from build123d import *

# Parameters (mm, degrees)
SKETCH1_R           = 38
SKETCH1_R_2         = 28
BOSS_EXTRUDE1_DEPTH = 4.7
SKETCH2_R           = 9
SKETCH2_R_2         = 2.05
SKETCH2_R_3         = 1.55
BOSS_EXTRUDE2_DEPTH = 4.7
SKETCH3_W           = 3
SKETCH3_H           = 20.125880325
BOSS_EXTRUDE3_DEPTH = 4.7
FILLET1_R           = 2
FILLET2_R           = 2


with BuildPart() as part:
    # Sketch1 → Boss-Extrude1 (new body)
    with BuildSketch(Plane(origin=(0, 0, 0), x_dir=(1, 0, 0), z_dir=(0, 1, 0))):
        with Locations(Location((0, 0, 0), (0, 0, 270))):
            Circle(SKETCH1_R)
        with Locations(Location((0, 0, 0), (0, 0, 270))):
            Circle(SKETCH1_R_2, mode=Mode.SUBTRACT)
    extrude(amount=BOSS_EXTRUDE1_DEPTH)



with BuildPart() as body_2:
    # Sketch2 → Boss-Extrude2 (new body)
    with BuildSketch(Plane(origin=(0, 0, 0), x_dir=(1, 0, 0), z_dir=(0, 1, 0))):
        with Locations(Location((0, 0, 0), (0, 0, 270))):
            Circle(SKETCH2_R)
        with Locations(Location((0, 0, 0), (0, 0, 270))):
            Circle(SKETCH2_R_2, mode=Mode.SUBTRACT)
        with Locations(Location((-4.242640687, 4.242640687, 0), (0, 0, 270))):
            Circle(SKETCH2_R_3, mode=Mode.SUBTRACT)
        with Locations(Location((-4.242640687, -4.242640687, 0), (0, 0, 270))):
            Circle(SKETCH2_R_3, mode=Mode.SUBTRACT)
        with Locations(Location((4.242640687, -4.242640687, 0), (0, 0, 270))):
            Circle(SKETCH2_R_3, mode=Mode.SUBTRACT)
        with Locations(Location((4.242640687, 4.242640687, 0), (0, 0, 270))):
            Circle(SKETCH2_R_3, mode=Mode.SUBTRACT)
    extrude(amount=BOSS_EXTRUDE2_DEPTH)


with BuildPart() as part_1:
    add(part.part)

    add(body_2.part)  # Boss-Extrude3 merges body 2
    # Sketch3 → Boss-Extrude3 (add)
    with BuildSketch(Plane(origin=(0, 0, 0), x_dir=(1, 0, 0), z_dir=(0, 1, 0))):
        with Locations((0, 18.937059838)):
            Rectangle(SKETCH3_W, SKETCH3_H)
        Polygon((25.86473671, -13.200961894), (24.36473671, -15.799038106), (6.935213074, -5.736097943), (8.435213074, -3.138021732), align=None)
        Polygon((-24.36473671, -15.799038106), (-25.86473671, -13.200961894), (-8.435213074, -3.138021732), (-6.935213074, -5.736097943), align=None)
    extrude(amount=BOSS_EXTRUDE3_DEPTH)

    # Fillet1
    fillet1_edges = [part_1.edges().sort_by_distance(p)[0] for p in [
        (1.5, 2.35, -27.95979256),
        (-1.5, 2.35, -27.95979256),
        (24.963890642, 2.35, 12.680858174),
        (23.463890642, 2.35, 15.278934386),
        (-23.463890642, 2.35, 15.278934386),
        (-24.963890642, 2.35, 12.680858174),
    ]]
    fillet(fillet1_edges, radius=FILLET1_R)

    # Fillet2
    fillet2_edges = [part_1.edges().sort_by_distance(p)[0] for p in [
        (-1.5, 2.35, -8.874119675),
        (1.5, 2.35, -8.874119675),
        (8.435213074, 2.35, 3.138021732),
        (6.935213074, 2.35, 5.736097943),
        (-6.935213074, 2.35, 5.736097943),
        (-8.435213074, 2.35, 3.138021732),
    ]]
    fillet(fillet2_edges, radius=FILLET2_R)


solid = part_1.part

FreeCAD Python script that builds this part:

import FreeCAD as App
import Part
import Sketcher
Q = App.Units.Quantity


def edges_at(feature, points):
    """Names of the edges that pass closest to the given points."""
    edges = feature.Shape.Edges
    near = lambda p: min(range(len(edges)), key=lambda i: edges[i].distToShape(Part.Vertex(*p))[0])
    return sorted({f"Edge{near(p) + 1}" for p in points})


def add_polygon(sketch, points):
    """Adds a closed chain of lines whose ends are joined by coincident constraints."""
    first, n = sketch.GeometryCount, len(points)
    for a, b in zip(points, points[1:] + points[:1]):
        sketch.addGeometry(Part.LineSegment(App.Vector(*a, 0), App.Vector(*b, 0)), False)
    for i in range(n):
        sketch.addConstraint(Sketcher.Constraint("Coincident", first + i, 2, first + (i + 1) % n, 1))

doc = App.newDocument("Part")
body = doc.addObject("PartDesign::Body", "Body")

# Sketch on XZ plane
sketch1 = body.newObject("Sketcher::SketchObject", "Sketch")
sketch1.AttachmentSupport = (doc.getObject("XZ_Plane"), [""])
sketch1.MapMode = "FlatFace"
sketch1.addGeometry([
    Part.Circle(App.Vector(0, 0, 0), App.Vector(0, 0, 1), 38),
    Part.Circle(App.Vector(0, 0, 0), App.Vector(0, 0, 1), 28),
], False)
sketch1.addConstraint([
    Sketcher.Constraint("Coincident", 0, 3, -1, 1),
    Sketcher.Constraint("Coincident", 1, 3, -1, 1),
    Sketcher.Constraint("Diameter", 0, 76.0),
    Sketcher.Constraint("Diameter", 1, 56.0),
])
pad1 = body.newObject("PartDesign::Pad", "Pad")
pad1.Profile = sketch1
pad1.Length = 4.7
pad1.Reversed = True
body2 = doc.addObject("PartDesign::Body", "Body001")

# Sketch on XZ plane
sketch2 = body2.newObject("Sketcher::SketchObject", "Sketch001")
sketch2.AttachmentSupport = (doc.getObject("XZ_Plane001"), [""])
sketch2.MapMode = "FlatFace"
sketch2.addGeometry([
    Part.Circle(App.Vector(0, 0, 0), App.Vector(0, 0, 1), 9),  # 0
    Part.Circle(App.Vector(-4.2, -4.2, 0), App.Vector(0, 0, 1), 1.6),  # 1
    Part.Circle(App.Vector(-4.2, 4.2, 0), App.Vector(0, 0, 1), 1.6),  # 2
    Part.Circle(App.Vector(4.2, -4.2, 0), App.Vector(0, 0, 1), 1.6),  # 3
    Part.Circle(App.Vector(0, 0, 0), App.Vector(0, 0, 1), 2),  # 4
    Part.Circle(App.Vector(4.2, 4.2, 0), App.Vector(0, 0, 1), 1.6),  # 5
], False)
sketch2.addConstraint([
    Sketcher.Constraint("Coincident", 0, 3, -1, 1),
    Sketcher.Constraint("Coincident", 4, 3, -1, 1),
    Sketcher.Constraint("Equal", 1, 2),
    Sketcher.Constraint("Equal", 2, 3),
    Sketcher.Constraint("Equal", 3, 5),
    Sketcher.Constraint("Symmetric", 2, 3, 3, 3, -1, 1),
    Sketcher.Constraint("Symmetric", 1, 3, 5, 3, -1, 1),
    Sketcher.Constraint("Symmetric", 1, 3, 3, 3, -2),
    Sketcher.Constraint("Diameter", 0, 18.0),
    Sketcher.Constraint("Diameter", 1, 3.1),
    Sketcher.Constraint("Diameter", 4, 4.1),
    Sketcher.Constraint("DistanceX", 1, 3, -1, 1, 4.242641),
    Sketcher.Constraint("DistanceY", 1, 3, -1, 1, 4.242641),
])
pad2 = body2.newObject("PartDesign::Pad", "Pad001")
pad2.Profile = sketch2
pad2.Length = 4.7
pad2.Reversed = True
body.AllowCompound = True
doc.recompute()

boolean = body.newObject("PartDesign::Boolean", "Boolean")
boolean.Type = "Fuse"
boolean.addObjects([body2])

# Sketch on XZ plane
sketch3 = body.newObject("Sketcher::SketchObject", "Sketch002")
sketch3.AttachmentSupport = (doc.getObject("XZ_Plane"), [""])
sketch3.MapMode = "FlatFace"
add_polygon(sketch3, [(-1.5, -29), (-1.5, -8.9), (1.5, -8.9), (1.5, -29)])  # lines 0-3
add_polygon(sketch3, [(24.4, 15.8), (25.9, 13.2), (8.4, 3.1), (6.9, 5.7)])  # lines 4-7
add_polygon(sketch3, [(-25.9, 13.2), (-24.4, 15.8), (-6.9, 5.7), (-8.4, 3.1)])  # lines 8-11
sketch3.addConstraint([
    Sketcher.Constraint("Vertical", 0),
    Sketcher.Constraint("Horizontal", 1),
    Sketcher.Constraint("Vertical", 2),
    Sketcher.Constraint("Horizontal", 3),
    Sketcher.Constraint("Symmetric", 7, 2, 8, 2, -2),
    Sketcher.Constraint("Symmetric", 6, 2, 9, 2, -2),
    Sketcher.Constraint("Symmetric", 5, 2, 10, 2, -2),
    Sketcher.Constraint("Symmetric", 4, 2, 11, 2, -2),
    Sketcher.Constraint("Perpendicular", 4, 5),
    Sketcher.Constraint("Perpendicular", 5, 6),
    Sketcher.Constraint("Perpendicular", 6, 7),
    Sketcher.Constraint("DistanceX", 1, 1, 1, 2, 3.0),
    Sketcher.Constraint("Angle", 4, Q("-60 deg")),
    Sketcher.Constraint("Distance", 4, 3.0),
    Sketcher.Constraint("DistanceY", 2, 2, -1, 1, 29.0),
    Sketcher.Constraint("DistanceX", 0, 2, -1, 1, 1.5),
    Sketcher.Constraint("DistanceY", 0, 1, 0, 2, 20.12588),
    Sketcher.Constraint("Distance", 5, 20.12588),
    Sketcher.Constraint("DistanceY", -1, 1, 4, 2, 13.200962),
    Sketcher.Constraint("DistanceX", 8, 2, 6, 2, 31.29995),
])
pad3 = body.newObject("PartDesign::Pad", "Pad002")
pad3.Profile = sketch3
pad3.Length = 4.7
pad3.Reversed = True
doc.recompute()

fillet = body.newObject("PartDesign::Fillet", "Fillet")
fillet.Base = (pad3, edges_at(pad3, [
    (1.5, 2.35, -27.96),
    (-1.5, 2.35, -27.96),
    (24.964, 2.35, 12.681),
    (23.464, 2.35, 15.279),
    (-23.464, 2.35, 15.279),
    (-24.964, 2.35, 12.681),
]))
fillet.Radius = 2
doc.recompute()

fillet2 = body.newObject("PartDesign::Fillet", "Fillet001")
fillet2.Base = (fillet, edges_at(fillet, [
    (-1.5, 2.35, -8.874),
    (1.5, 2.35, -8.874),
    (8.435, 2.35, 3.138),
    (6.935, 2.35, 5.736),
    (-6.935, 2.35, 5.736),
    (-8.435, 2.35, 3.138),
]))
fillet2.Radius = 2

doc.recompute()
